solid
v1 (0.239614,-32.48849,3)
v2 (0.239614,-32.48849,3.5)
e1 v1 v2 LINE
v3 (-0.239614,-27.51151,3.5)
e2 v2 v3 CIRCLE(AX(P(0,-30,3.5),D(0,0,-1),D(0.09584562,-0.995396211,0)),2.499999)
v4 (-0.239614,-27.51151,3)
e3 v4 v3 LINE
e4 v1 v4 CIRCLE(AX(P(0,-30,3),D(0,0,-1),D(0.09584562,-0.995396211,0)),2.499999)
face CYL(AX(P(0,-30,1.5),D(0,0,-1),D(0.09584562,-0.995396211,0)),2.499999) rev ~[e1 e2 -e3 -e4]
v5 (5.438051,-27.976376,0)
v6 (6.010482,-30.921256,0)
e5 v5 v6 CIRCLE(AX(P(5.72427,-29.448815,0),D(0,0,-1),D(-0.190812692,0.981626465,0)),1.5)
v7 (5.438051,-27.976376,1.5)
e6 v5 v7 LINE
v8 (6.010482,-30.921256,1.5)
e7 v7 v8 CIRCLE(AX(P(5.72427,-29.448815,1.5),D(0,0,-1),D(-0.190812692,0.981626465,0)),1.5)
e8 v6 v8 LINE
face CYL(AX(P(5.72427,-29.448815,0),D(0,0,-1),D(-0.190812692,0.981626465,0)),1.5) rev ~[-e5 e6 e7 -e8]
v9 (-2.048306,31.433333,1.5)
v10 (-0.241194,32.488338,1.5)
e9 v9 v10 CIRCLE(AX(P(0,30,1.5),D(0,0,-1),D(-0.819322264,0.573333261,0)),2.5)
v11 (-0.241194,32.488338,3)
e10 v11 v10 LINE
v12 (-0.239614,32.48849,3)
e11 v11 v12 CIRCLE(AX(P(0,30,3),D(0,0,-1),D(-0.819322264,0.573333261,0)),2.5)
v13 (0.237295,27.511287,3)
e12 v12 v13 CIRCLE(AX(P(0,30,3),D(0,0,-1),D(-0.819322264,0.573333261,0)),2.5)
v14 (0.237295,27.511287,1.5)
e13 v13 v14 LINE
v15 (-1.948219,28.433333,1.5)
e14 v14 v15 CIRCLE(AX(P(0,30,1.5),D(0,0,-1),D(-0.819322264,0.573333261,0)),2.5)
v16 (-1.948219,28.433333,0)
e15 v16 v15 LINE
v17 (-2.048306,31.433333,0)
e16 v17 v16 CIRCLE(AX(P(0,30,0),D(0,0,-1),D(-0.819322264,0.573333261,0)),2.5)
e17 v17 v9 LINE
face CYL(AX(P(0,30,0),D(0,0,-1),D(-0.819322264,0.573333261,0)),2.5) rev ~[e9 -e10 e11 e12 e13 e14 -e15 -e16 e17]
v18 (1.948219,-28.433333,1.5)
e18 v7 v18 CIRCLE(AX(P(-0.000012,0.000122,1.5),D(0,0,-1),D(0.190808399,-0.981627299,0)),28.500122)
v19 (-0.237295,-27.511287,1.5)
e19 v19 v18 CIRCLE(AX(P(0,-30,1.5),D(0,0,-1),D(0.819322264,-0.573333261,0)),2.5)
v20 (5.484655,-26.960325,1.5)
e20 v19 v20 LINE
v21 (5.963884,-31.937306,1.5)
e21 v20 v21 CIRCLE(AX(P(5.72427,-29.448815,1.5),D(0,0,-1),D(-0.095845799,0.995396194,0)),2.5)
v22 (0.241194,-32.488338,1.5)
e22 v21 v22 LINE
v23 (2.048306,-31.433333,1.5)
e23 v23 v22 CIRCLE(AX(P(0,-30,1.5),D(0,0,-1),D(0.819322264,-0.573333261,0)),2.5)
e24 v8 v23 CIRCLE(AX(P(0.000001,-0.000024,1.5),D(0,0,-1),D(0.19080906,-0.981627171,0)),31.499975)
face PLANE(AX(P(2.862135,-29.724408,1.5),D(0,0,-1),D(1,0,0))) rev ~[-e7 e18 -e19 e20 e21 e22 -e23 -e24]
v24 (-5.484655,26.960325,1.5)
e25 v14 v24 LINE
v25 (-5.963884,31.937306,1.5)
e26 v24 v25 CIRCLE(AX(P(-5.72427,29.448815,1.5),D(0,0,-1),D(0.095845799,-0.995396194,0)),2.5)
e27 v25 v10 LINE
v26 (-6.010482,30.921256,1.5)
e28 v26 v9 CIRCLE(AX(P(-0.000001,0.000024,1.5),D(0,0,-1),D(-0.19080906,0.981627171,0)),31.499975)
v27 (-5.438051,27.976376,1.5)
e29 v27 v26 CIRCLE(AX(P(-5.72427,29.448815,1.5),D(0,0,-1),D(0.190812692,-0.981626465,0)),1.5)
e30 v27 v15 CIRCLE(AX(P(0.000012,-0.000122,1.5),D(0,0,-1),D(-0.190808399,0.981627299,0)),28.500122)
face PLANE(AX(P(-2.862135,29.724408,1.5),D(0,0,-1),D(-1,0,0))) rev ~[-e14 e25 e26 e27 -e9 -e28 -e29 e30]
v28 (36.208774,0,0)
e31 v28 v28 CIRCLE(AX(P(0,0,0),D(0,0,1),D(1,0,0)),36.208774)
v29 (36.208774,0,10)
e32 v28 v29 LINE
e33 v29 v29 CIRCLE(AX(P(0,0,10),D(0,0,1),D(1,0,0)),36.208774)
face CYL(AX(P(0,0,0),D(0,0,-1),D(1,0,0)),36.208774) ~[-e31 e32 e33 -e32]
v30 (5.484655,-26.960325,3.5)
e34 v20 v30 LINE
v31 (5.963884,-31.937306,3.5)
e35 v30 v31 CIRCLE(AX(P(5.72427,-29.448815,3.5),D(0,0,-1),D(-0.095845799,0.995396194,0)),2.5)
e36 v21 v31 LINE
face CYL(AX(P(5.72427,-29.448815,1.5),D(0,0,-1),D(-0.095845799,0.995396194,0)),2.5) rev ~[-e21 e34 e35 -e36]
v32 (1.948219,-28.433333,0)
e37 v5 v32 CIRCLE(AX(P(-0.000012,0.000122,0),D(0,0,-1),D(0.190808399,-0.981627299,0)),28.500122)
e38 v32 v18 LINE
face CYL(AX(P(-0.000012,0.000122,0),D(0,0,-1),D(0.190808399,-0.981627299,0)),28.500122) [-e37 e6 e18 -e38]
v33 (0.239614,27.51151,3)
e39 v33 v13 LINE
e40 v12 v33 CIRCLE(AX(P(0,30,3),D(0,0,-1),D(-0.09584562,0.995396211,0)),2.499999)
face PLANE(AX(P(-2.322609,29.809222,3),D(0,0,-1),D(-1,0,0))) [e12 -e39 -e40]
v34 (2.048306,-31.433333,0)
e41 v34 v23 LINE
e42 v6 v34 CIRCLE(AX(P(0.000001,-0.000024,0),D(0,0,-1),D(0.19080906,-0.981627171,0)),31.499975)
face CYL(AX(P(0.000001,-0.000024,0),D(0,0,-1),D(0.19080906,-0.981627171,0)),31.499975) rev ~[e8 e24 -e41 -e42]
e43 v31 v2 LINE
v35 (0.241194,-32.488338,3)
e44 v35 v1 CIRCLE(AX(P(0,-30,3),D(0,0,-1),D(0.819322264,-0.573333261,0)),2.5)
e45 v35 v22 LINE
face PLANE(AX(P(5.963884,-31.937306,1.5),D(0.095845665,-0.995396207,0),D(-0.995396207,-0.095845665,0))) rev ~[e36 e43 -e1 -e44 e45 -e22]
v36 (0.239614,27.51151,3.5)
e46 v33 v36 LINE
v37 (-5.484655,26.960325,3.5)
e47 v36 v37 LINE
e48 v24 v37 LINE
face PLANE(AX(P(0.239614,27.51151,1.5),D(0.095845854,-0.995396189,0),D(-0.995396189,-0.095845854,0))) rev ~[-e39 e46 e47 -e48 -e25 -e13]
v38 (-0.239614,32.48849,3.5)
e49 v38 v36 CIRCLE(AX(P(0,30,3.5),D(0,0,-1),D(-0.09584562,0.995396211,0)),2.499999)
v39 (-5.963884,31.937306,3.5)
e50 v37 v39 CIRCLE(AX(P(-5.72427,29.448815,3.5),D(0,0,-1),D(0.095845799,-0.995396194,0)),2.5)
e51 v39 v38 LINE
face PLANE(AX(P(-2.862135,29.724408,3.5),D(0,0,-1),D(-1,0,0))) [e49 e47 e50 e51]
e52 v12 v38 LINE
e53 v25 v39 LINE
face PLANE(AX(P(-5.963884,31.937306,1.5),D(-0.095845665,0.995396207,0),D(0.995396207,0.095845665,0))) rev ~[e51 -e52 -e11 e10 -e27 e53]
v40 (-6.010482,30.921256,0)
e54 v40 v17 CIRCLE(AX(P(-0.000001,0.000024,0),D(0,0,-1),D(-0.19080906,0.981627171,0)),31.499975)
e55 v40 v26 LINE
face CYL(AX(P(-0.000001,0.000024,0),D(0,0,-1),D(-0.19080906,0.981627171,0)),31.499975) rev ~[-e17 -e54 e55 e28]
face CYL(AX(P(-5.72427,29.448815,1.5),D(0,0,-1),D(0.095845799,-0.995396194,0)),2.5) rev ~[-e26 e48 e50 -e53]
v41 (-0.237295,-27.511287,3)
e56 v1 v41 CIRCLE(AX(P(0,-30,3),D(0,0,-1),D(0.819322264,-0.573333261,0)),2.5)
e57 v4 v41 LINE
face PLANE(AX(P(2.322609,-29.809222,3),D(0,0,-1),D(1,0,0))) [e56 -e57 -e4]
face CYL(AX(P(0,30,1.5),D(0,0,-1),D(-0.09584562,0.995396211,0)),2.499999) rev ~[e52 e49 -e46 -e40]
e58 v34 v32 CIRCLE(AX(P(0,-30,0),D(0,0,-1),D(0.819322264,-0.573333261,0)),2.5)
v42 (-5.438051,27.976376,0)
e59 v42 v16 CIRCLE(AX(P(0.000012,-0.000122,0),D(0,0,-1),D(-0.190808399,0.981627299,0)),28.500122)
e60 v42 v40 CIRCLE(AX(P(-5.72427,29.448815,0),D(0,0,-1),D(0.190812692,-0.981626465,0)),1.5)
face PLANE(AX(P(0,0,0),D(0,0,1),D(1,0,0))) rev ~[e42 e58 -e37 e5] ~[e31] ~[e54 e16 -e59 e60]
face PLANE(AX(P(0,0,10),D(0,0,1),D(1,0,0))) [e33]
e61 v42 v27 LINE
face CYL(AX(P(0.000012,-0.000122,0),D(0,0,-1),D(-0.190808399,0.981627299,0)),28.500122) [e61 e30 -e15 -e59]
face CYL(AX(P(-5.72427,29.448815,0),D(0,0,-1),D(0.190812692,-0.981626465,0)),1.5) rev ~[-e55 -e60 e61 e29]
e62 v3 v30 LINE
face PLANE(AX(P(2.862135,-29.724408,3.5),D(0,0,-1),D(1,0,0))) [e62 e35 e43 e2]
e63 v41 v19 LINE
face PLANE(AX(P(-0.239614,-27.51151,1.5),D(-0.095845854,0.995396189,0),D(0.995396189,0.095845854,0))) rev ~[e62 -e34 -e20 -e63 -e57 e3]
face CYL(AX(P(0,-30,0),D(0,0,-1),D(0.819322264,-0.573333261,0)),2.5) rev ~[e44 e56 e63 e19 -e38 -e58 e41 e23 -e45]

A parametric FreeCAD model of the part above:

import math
import FreeCAD as App
import Part
import Sketcher

V = App.Vector
Q = App.Units.Quantity

doc = App.newDocument("Part")
body = doc.addObject("PartDesign::Body", "Body")

# Sketch on XY plane
sketch1 = body.newObject("Sketcher::SketchObject", "Sketch")
sketch1.AttachmentSupport = (doc.getObject("XY_Plane"), [""])
sketch1.MapMode = "FlatFace"
sketch1.addGeometry(Part.Circle(V(0, 0, 0), V(0, 0, 1), 36.208774), False)
sketch1.addConstraint([
    Sketcher.Constraint("Coincident", 0, 3, -1, 1),
    Sketcher.Constraint("Diameter", 0, 72.417548),
])
pad1 = body.newObject("PartDesign::Pad", "Pad")
pad1.Profile = sketch1
pad1.Length = 10

# Sketch on XY plane
sketch2 = body.newObject("Sketcher::SketchObject", "Sketch001")
sketch2.AttachmentSupport = (doc.getObject("XY_Plane"), [""])
sketch2.MapMode = "FlatFace"
sketch2.addGeometry([
    Part.ArcOfCircle(Part.Circle(V(0, -30, 0), V(0, 0, 1), 2.5), math.radians(38.804617), math.radians(325.017007)),
    Part.ArcOfCircle(Part.Circle(V(-0.000012, 0.000122, 0), V(0, 0, 1), 28.500122), math.radians(-86.08028), math.radians(-79.000035)),
    Part.ArcOfCircle(Part.Circle(V(5.72427, -29.448815, 0), V(0, 0, 1), 1.5), math.radians(-79.000054), math.radians(101.000216)),
    Part.ArcOfCircle(Part.Circle(V(0.000001, -0.000024, 0), V(0, 0, 1), 31.499975), math.radians(-86.271677), math.radians(-78.999996)),
], False)
sketch2.addConstraint([
    Sketcher.Constraint("Coincident", 0, 1, 1, 1),
    Sketcher.Constraint("Coincident", 1, 2, 2, 2),
    Sketcher.Constraint("Tangent", 2, 1, 3, 2),
    Sketcher.Constraint("Coincident", 3, 1, 0, 2),
    Sketcher.Constraint("PointOnObject", 0, 3, -2),
    Sketcher.Constraint("PointOnObject", 3, 3, -2),
    Sketcher.Constraint("Radius", 0, 2.5),
    Sketcher.Constraint("Radius", 2, 1.5),
    Sketcher.Constraint("DistanceY", 0, 3, -1, 1, 30.0),
    Sketcher.Constraint("DistanceY", 3, 1, 0, 1, 3.0),
    Sketcher.Constraint("Radius", 1, 28.500122),
    Sketcher.Constraint("Radius", 3, 31.499975),
    Sketcher.Constraint("DistanceY", -1, 1, 1, 3, 0.000122),
    Sketcher.Constraint("DistanceX", -1, 1, 2, 3, 5.72427),
    Sketcher.Constraint("DistanceX", -1, 1, 1, 2, 5.438051),
])
pocket1 = body.newObject("PartDesign::Pocket", "Pocket")
pocket1.Profile = sketch2
pocket1.Length = 3
pocket1.Reversed = True

# Sketch on XY plane
sketch3 = body.newObject("Sketcher::SketchObject", "Sketch002")
sketch3.AttachmentSupport = (doc.getObject("XY_Plane"), [""])
sketch3.MapMode = "FlatFace"
sketch3.AttachmentOffset = App.Placement(V(0, 0, 1.5), App.Rotation())
sketch3.addGeometry([
    Part.ArcOfCircle(Part.Circle(V(0, -30, 0), V(0, 0, 1), 2.499999), math.radians(95.499992), math.radians(275.499992)),
    Part.LineSegment(V(-0.239614, -27.51151, 0), V(5.484655, -26.960325, 0)),
    Part.ArcOfCircle(Part.Circle(V(5.72427, -29.448815, 0), V(0, 0, 1), 2.5), math.radians(-84.499997), math.radians(95.500003)),
    Part.LineSegment(V(5.963884, -31.937306, 0), V(0.239614, -32.48849, 0)),
], False)
sketch3.addConstraint([
    Sketcher.Constraint("Tangent", 0, 1, 1, 1),
    Sketcher.Constraint("Tangent", 1, 2, 2, 2),
    Sketcher.Constraint("Tangent", 2, 1, 3, 1),
    Sketcher.Constraint("Tangent", 3, 2, 0, 2),
    Sketcher.Constraint("Equal", 0, 2),
    Sketcher.Constraint("PointOnObject", 0, 3, -2),
    Sketcher.Constraint("Radius", 0, 2.499999),
    Sketcher.Constraint("DistanceY", 0, 3, -1, 1, 30.0),
    Sketcher.Constraint("Angle", 1, Q("5.500006 deg")),
    Sketcher.Constraint("DistanceX", -1, 1, 2, 3, 5.72427),
])
pocket2 = body.newObject("PartDesign::Pocket", "Pocket001")
pocket2.Profile = sketch3
pocket2.Length = 2
pocket2.Reversed = True
doc.recompute()

polarpattern = body.newObject("PartDesign::PolarPattern", "PolarPattern")
polarpattern.Originals = [pocket1, pocket2]
polarpattern.Axis = (doc.getObject("Z_Axis"), [""])
polarpattern.Angle = 360
polarpattern.Occurrences = 2
body.Tip = polarpattern

doc.recompute()
